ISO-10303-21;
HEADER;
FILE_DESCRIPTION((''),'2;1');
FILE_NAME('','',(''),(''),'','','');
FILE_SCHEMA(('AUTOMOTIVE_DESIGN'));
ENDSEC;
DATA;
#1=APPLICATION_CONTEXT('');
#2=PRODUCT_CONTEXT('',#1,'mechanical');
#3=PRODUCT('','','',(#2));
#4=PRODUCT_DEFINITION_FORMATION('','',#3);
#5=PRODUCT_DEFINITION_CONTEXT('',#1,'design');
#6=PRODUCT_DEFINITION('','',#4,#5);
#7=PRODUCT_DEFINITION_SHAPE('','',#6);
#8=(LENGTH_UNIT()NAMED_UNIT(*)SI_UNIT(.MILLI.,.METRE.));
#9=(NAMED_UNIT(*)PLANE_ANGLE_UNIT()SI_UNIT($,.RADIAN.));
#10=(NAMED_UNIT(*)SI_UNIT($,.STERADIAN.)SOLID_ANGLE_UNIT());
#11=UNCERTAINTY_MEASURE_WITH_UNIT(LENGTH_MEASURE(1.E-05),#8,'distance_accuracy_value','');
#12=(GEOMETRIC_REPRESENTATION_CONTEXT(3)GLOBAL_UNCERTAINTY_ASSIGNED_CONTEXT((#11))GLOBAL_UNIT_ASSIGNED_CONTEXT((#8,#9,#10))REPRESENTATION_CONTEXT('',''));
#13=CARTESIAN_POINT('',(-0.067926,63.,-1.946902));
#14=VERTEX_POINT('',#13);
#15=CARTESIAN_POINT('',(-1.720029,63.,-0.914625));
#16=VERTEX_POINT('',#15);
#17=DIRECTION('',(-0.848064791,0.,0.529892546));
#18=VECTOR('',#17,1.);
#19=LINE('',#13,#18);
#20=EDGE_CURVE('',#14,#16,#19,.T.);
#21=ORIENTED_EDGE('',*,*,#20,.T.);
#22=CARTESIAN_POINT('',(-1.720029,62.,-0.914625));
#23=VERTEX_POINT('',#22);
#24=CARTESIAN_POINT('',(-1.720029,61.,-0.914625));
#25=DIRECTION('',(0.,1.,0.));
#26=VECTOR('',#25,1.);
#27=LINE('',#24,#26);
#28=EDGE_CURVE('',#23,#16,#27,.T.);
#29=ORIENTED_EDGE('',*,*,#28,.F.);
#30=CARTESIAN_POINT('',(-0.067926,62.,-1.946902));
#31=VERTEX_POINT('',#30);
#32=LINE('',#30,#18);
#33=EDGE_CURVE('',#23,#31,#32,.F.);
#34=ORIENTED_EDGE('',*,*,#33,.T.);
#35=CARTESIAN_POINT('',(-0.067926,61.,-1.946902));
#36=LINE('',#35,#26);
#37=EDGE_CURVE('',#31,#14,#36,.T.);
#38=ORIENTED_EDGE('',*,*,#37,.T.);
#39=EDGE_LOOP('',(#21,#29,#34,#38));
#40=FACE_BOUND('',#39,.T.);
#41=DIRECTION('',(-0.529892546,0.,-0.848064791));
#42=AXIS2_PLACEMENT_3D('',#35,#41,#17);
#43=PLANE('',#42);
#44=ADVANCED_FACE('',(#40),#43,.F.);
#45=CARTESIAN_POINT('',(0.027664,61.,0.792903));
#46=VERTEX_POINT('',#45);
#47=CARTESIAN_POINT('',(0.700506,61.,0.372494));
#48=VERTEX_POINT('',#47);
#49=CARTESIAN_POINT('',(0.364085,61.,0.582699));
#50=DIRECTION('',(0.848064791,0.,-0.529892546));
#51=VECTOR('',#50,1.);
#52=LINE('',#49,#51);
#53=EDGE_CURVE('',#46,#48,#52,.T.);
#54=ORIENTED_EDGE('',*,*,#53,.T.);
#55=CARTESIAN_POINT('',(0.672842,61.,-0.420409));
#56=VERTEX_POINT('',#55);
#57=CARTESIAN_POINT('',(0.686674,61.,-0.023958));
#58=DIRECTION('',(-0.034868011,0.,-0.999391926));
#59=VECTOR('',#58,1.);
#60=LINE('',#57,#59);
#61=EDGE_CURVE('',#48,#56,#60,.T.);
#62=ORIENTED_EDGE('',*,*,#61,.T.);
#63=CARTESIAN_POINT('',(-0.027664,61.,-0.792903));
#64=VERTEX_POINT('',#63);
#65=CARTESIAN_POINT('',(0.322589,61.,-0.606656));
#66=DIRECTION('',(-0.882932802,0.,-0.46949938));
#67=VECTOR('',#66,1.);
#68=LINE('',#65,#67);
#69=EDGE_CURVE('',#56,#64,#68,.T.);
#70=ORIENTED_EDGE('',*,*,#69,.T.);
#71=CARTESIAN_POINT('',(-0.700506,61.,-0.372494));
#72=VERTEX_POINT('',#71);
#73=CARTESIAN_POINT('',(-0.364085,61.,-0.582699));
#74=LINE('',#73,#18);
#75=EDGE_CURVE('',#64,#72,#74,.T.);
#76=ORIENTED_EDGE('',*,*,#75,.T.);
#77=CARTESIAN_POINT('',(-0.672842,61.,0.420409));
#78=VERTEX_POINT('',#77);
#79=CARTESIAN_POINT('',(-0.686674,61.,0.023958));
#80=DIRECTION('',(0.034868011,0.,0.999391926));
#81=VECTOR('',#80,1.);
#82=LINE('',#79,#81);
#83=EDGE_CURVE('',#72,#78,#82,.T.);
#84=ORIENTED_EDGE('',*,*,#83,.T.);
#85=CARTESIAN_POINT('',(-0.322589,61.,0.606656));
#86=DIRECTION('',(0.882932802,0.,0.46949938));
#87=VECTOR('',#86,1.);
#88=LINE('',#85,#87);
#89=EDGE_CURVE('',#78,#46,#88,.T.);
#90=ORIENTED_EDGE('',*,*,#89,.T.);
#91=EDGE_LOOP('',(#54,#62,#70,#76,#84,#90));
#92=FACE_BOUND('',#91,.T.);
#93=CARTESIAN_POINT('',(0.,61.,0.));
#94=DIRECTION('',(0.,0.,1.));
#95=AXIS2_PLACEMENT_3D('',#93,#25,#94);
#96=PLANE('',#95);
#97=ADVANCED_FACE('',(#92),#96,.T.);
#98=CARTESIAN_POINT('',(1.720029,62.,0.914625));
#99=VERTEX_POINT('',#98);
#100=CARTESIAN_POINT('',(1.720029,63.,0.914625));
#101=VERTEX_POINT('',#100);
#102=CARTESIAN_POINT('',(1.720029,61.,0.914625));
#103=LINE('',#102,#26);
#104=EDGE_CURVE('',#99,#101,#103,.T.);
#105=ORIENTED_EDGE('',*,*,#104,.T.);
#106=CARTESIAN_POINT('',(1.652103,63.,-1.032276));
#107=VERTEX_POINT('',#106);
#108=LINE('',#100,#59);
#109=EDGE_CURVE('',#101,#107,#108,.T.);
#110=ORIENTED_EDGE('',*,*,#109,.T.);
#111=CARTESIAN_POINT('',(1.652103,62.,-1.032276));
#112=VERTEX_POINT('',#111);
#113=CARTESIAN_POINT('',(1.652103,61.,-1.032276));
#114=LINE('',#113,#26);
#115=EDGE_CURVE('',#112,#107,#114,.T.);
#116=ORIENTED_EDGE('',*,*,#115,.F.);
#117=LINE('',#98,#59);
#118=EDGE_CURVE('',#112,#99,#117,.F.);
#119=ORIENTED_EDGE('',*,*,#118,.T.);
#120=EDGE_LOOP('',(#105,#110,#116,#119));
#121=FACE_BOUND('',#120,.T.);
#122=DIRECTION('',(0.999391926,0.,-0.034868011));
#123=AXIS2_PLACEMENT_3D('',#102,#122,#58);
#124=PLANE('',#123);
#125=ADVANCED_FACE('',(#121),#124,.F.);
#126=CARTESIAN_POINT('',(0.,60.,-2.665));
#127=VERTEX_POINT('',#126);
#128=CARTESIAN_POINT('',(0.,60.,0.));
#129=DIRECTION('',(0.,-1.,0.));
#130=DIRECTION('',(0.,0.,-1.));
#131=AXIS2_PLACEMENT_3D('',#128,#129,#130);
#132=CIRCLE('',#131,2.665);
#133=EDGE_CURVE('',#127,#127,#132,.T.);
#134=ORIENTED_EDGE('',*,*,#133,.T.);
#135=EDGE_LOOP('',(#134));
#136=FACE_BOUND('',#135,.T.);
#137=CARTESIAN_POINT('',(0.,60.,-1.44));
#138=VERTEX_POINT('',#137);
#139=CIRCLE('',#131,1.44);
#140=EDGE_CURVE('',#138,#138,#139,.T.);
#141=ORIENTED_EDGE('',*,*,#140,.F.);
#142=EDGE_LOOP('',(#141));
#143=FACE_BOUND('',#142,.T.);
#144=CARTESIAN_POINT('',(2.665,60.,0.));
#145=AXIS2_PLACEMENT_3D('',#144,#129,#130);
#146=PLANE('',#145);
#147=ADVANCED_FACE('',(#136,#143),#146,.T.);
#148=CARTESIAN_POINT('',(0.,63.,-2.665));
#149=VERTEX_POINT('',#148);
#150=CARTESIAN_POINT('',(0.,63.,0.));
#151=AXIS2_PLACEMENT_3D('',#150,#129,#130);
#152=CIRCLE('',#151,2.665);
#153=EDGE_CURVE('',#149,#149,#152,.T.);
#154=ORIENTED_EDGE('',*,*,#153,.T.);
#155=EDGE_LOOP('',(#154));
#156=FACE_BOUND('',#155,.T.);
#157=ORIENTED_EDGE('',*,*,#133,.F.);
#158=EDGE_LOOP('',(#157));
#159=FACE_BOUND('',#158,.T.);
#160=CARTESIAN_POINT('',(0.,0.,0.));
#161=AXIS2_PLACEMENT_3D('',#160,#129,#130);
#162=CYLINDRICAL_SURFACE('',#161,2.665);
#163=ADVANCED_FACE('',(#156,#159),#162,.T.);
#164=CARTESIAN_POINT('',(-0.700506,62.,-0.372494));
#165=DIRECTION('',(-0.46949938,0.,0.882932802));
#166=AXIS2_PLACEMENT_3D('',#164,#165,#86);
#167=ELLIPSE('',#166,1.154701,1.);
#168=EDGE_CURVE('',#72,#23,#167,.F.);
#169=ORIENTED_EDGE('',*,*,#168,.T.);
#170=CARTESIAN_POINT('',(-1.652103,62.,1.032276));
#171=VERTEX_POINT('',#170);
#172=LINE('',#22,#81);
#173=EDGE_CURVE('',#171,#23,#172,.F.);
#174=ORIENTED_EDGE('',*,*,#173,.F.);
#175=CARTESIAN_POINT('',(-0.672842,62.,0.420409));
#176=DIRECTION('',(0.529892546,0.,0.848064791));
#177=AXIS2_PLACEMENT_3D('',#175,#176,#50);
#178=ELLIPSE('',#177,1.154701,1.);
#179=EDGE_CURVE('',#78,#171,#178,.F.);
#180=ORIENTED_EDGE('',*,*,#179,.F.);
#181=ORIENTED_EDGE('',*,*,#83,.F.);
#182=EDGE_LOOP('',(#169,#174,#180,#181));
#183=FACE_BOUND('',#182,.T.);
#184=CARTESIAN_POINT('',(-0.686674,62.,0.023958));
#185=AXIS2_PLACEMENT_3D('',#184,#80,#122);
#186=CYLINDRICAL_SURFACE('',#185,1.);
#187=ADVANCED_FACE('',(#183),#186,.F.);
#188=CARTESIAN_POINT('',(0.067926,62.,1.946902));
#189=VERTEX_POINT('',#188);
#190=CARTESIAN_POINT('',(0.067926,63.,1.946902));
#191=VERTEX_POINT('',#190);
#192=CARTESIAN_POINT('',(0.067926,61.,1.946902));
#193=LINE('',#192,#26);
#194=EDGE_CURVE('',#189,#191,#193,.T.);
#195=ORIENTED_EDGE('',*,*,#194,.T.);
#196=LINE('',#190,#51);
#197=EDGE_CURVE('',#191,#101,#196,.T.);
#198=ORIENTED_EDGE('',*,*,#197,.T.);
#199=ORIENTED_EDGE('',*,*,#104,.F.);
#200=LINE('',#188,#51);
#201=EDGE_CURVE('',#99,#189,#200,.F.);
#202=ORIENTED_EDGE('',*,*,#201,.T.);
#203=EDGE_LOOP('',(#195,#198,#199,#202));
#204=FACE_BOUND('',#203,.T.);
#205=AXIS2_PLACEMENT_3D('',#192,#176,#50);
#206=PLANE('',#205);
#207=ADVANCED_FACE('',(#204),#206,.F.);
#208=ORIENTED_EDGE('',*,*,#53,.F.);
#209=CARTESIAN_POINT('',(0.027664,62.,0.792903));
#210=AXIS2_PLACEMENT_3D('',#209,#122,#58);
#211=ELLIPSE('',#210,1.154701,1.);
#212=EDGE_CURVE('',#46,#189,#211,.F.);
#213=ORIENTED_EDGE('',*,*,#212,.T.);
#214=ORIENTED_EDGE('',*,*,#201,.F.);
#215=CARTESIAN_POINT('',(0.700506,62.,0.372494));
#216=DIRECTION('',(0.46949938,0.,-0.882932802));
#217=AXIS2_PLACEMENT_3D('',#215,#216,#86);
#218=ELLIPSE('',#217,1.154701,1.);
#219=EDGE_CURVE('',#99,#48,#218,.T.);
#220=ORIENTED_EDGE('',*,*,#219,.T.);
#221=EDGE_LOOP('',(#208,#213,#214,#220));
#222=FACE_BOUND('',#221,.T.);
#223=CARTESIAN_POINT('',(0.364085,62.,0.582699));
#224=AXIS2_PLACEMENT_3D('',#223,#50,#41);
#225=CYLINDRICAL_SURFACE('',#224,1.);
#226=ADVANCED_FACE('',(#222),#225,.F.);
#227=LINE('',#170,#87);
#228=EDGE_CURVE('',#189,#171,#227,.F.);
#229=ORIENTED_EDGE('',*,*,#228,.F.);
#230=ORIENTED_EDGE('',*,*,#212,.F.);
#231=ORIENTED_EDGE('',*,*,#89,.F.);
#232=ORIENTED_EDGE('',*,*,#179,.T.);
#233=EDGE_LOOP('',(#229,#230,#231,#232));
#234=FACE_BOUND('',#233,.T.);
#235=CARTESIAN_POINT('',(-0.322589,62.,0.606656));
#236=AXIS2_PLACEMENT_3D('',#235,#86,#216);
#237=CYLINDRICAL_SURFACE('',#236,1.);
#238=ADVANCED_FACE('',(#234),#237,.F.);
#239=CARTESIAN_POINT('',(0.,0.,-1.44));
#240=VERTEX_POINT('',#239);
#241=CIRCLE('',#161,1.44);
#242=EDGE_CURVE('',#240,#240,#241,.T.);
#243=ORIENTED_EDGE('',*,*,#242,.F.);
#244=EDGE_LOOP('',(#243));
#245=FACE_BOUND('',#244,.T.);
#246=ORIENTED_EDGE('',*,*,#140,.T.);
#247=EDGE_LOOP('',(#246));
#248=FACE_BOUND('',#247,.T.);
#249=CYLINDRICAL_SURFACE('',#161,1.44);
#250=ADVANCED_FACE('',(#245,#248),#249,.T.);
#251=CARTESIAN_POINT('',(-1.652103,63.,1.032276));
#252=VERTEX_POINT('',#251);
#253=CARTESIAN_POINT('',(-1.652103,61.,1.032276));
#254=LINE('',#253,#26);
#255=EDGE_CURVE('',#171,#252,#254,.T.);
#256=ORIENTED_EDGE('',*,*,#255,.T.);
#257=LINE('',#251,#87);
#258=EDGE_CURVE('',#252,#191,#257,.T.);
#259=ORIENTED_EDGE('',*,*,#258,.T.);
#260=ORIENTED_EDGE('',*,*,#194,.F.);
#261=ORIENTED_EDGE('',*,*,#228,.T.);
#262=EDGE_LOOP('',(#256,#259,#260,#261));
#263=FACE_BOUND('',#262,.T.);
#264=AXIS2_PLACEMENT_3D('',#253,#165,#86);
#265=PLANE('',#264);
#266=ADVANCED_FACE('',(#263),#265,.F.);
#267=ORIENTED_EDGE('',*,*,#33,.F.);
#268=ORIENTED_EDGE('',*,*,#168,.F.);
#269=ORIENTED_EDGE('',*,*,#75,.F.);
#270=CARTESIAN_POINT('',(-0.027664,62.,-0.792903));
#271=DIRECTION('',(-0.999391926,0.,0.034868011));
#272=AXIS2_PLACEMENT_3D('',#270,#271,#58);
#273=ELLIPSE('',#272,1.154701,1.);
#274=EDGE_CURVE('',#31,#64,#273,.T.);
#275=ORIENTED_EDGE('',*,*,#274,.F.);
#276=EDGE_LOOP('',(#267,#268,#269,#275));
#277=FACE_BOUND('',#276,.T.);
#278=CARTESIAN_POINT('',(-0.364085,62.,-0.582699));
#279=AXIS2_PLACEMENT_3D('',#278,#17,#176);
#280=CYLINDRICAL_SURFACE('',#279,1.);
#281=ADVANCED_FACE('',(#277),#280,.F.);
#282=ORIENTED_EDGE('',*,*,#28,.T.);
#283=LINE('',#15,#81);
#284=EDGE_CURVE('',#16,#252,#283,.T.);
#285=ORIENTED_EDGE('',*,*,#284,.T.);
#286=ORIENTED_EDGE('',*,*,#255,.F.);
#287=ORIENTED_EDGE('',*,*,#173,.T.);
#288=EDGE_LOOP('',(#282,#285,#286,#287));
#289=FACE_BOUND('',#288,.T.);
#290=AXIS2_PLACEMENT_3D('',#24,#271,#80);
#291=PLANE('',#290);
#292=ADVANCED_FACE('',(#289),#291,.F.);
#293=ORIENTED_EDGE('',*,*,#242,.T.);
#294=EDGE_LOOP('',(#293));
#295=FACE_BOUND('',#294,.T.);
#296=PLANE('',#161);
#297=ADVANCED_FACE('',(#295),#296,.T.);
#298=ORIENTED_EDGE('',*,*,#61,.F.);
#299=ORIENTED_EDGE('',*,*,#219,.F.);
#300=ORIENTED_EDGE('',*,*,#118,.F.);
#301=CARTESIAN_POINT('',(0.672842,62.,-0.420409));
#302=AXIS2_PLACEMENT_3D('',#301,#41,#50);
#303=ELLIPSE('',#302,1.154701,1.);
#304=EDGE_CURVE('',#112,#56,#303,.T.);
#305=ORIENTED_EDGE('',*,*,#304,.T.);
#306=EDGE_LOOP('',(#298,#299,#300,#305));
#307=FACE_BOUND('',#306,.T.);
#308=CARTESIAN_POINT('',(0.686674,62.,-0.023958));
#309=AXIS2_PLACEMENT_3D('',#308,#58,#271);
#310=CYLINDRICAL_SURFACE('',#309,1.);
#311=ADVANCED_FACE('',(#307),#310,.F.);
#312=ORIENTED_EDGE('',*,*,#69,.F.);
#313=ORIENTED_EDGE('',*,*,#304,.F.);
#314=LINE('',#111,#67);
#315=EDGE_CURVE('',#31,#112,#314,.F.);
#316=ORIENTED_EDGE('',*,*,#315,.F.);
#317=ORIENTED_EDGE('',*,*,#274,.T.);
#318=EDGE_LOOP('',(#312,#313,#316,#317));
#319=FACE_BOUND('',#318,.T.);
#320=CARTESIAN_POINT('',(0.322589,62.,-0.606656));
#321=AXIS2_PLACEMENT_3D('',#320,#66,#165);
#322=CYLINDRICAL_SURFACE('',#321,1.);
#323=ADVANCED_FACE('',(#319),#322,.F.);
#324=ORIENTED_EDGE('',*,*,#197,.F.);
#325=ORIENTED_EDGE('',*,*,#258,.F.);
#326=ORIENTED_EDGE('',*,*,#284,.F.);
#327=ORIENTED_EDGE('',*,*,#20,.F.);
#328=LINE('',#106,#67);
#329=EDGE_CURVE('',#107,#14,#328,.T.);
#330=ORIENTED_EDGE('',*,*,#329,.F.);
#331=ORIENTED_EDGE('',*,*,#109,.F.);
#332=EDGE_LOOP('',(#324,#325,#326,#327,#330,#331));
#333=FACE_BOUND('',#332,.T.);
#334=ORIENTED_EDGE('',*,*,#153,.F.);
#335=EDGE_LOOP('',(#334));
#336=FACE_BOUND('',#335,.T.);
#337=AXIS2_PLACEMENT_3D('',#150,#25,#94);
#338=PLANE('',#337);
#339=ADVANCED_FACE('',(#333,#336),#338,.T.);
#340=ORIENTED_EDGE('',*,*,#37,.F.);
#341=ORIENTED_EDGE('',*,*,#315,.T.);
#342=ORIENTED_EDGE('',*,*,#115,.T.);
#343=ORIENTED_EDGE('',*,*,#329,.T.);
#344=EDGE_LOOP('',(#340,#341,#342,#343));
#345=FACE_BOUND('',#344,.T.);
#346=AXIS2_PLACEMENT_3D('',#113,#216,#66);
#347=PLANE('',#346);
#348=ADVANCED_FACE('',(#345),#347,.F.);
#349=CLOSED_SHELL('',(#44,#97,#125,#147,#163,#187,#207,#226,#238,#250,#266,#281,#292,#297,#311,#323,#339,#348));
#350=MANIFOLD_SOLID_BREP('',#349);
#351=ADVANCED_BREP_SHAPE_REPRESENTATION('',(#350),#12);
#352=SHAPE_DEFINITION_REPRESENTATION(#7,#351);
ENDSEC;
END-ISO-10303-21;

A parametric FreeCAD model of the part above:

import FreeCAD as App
import Part
import Sketcher

V = App.Vector
Q = App.Units.Quantity


def edges_at(feature, points):
    """Names of the edges that pass closest to the given points."""
    edges = feature.Shape.Edges
    near = lambda p: min(range(len(edges)), key=lambda i: edges[i].distToShape(Part.Vertex(*p))[0])
    return sorted({f"Edge{near(p) + 1}" for p in points})


def add_polygon(sketch, points):
    """Adds a closed chain of lines whose ends are joined by coincident constraints."""
    first, n = sketch.GeometryCount, len(points)
    for a, b in zip(points, points[1:] + points[:1]):
        sketch.addGeometry(Part.LineSegment(App.Vector(*a, 0), App.Vector(*b, 0)), False)
    for i in range(n):
        sketch.addConstraint(Sketcher.Constraint("Coincident", first + i, 2, first + (i + 1) % n, 1))

doc = App.newDocument("Part")
body = doc.addObject("PartDesign::Body", "Body")

# Sketch on XY plane
sketch1 = body.newObject("Sketcher::SketchObject", "Sketch")
sketch1.AttachmentSupport = (doc.getObject("XY_Plane"), [""])
sketch1.MapMode = "FlatFace"
add_polygon(sketch1, [(0, 0), (1.4, 0), (1.4, 60), (2.7, 60), (2.7, 63), (0, 63)])  # lines 0-5
sketch1.addConstraint(Sketcher.Constraint("Horizontal", 0))
sketch1.addConstraint(Sketcher.Constraint("Vertical", 1))
sketch1.addConstraint(Sketcher.Constraint("Horizontal", 2))
sketch1.addConstraint(Sketcher.Constraint("Vertical", 3))
sketch1.addConstraint(Sketcher.Constraint("Horizontal", 4))
sketch1.addConstraint(Sketcher.Constraint("Vertical", 5))
sketch1.addConstraint(Sketcher.Constraint("Coincident", 5, 2, -1, 1))
sketch1.addConstraint(Sketcher.Constraint("DistanceY", 1, 1, 1, 2, Q("60 mm")))
sketch1.addConstraint(Sketcher.Constraint("DistanceY", 3, 1, 3, 2, Q("3 mm")))
sketch1.addConstraint(Sketcher.Constraint("DistanceX", 0, 1, 0, 2, Q("1.44 mm")))
sketch1.addConstraint(Sketcher.Constraint("DistanceX", 2, 1, 2, 2, Q("1.225 mm")))
revolution = body.newObject("PartDesign::Revolution", "Revolution")
revolution.Profile = sketch1
revolution.ReferenceAxis = (sketch1, ["V_Axis"])
revolution.Angle = 360

# Sketch on XZ plane
sketch2 = body.newObject("Sketcher::SketchObject", "Sketch001")
sketch2.AttachmentSupport = (doc.getObject("XZ_Plane"), [""])
sketch2.MapMode = "FlatFace"
sketch2.AttachmentOffset = App.Placement(V(0, 0, -63), App.Rotation())
add_polygon(sketch2, [(1.7, 0.9), (1.7, -1), (-0.1, -1.9), (-1.7, -0.9), (-1.7, 1), (0.1, 1.9)])  # lines 0-5
sketch2.addConstraint(Sketcher.Constraint("Symmetric", 0, 2, 3, 2, -1, 1))
sketch2.addConstraint(Sketcher.Constraint("Symmetric", 1, 2, 4, 2, -1, 1))
sketch2.addConstraint(Sketcher.Constraint("Symmetric", 2, 2, 5, 2, -1, 1))
sketch2.addConstraint(Sketcher.Constraint("Equal", 0, 1))
sketch2.addConstraint(Sketcher.Constraint("Equal", 1, 2))
sketch2.addConstraint(Sketcher.Constraint("DistanceY", 1, 2, -1, 1, Q("1.946902 mm")))
sketch2.addConstraint(Sketcher.Constraint("DistanceY", 2, 2, 3, 2, Q("1.946902 mm")))
sketch2.addConstraint(Sketcher.Constraint("DistanceX", 2, 2, -1, 1, Q("1.720029 mm")))
sketch2.addConstraint(Sketcher.Constraint("DistanceX", 1, 2, 0, 2, Q("1.720029 mm")))
pocket1 = body.newObject("PartDesign::Pocket", "Pocket")
pocket1.Profile = sketch2
pocket1.Length = 2
pocket1.Reversed = True
doc.recompute()

fillet = body.newObject("PartDesign::Fillet", "Fillet")
fillet.Base = (pocket1, edges_at(pocket1, [
    (0.894, 61, 1.431),
    (-0.792, 61, 1.49),
    (-1.686, 61, 0.059),
    (-0.894, 61, -1.431),
    (0.792, 61, -1.49),
    (1.686, 61, -0.059),
]))
fillet.Radius = 1

doc.recompute()
